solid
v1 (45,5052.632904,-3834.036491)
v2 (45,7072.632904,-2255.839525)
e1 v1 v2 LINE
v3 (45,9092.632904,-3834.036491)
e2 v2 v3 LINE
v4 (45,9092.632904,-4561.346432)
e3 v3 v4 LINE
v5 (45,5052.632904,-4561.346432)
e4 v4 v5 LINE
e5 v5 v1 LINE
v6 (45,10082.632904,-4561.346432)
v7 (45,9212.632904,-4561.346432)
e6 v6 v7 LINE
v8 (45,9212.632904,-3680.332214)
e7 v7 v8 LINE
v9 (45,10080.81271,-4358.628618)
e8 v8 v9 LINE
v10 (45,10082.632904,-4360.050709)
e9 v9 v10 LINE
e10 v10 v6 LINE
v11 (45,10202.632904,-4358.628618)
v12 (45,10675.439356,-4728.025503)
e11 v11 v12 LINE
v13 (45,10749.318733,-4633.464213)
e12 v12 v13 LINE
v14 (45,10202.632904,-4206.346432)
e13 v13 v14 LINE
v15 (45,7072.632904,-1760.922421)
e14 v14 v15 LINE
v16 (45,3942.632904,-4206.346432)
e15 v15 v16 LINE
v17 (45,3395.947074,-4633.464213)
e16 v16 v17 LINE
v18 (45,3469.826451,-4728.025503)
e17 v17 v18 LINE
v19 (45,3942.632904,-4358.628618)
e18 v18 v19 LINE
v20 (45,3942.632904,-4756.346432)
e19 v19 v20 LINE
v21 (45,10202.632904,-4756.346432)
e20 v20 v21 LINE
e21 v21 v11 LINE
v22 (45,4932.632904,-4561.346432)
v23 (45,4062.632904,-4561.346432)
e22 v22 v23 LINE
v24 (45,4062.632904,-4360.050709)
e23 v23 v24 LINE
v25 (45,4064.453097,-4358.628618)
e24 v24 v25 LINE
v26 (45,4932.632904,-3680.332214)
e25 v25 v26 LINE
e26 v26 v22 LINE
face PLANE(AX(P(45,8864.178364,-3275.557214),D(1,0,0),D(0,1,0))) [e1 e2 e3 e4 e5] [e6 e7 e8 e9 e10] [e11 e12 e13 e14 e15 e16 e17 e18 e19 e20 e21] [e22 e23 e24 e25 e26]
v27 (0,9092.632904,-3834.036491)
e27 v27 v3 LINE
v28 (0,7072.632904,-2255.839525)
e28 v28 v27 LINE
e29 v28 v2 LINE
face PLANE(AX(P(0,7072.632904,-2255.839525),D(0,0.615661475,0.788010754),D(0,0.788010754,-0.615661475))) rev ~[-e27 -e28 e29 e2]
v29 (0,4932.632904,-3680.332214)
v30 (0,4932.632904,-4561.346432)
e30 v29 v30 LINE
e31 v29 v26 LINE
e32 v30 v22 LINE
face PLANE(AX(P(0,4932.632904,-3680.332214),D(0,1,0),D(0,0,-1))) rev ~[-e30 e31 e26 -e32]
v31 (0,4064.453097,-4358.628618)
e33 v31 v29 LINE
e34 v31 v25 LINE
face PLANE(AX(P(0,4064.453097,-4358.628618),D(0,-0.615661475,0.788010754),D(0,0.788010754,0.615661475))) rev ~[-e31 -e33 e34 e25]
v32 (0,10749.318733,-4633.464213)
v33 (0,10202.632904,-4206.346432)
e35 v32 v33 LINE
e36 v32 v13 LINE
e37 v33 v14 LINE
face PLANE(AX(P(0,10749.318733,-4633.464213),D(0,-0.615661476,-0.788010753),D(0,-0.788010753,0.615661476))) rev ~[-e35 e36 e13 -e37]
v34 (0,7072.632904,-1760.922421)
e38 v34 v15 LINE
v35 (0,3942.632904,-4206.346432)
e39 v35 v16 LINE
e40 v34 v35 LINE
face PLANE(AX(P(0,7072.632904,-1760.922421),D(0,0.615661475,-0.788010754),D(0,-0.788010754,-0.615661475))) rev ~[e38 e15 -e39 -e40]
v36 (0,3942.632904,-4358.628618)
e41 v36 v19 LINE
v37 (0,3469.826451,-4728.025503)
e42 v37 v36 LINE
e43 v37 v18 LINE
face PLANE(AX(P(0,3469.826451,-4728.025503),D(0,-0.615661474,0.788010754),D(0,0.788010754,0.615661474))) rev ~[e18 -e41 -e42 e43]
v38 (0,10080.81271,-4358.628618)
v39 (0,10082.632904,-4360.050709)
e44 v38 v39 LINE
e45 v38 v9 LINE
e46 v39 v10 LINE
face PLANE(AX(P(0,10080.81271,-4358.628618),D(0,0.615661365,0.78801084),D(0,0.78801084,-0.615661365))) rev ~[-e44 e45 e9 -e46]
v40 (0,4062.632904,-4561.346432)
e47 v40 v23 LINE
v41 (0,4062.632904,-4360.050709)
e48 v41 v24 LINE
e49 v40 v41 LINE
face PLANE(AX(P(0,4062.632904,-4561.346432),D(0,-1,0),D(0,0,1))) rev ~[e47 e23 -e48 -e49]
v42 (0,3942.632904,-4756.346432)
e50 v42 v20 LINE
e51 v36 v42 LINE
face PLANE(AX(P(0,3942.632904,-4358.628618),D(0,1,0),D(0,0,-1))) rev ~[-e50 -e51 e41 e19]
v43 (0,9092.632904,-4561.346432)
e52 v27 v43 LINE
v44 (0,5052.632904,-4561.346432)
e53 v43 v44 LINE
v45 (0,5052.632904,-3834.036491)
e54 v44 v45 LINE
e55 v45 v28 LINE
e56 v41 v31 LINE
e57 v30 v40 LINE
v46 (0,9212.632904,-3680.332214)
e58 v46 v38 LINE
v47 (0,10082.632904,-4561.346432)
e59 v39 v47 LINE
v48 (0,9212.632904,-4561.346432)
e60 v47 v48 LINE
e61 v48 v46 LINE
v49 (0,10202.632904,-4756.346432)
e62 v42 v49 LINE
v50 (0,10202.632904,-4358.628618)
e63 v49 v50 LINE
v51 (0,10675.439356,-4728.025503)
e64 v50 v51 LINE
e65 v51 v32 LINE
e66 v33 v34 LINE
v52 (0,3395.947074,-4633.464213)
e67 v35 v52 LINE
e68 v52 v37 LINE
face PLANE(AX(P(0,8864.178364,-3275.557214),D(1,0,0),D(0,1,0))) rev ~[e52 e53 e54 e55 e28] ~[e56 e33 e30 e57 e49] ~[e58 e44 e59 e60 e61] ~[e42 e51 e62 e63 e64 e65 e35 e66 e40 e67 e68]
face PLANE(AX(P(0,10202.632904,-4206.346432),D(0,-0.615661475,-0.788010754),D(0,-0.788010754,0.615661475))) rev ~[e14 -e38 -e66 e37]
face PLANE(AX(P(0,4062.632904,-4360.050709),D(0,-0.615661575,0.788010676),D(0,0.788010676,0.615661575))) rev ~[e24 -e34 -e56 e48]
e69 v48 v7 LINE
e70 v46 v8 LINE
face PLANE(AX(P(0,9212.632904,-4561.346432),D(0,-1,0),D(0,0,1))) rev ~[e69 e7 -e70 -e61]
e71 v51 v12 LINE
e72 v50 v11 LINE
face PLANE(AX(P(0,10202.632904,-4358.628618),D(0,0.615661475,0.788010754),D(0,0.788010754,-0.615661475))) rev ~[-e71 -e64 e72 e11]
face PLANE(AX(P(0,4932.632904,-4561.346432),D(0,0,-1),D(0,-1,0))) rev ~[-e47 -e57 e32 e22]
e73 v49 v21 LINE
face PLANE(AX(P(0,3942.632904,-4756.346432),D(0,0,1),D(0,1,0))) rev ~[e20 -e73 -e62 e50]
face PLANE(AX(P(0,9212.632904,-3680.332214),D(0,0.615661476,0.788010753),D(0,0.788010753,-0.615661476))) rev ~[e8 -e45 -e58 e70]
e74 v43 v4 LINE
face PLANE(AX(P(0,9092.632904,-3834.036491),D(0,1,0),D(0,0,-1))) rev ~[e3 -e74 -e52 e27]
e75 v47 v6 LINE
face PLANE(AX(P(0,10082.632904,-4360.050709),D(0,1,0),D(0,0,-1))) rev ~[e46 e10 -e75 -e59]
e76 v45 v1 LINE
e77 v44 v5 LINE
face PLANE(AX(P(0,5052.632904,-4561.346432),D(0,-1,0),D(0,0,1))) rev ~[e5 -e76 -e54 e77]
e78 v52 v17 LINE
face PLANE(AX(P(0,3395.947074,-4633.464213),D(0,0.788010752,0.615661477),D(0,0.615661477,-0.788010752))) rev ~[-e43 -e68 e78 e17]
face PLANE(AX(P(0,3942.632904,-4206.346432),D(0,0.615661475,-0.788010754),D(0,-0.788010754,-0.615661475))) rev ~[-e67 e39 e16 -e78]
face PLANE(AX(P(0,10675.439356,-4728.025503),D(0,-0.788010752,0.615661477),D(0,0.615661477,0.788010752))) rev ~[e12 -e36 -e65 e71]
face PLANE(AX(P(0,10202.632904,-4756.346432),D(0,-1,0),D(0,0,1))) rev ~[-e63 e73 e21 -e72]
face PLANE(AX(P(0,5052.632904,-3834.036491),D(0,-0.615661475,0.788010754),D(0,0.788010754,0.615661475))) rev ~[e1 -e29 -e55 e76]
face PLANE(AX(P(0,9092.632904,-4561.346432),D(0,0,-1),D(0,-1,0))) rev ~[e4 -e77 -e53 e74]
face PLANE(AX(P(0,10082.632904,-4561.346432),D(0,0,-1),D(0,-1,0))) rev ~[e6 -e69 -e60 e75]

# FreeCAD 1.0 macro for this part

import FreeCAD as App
import Part
import Sketcher
from FreeCAD import Vector
Q = App.Units.Quantity

doc = App.newDocument("Part")
params = doc.addObject("Spreadsheet::Sheet", "Params")
for row, (alias, value) in enumerate([
    ("sketch1_width", "6260 mm"),
    ("sketch1_width2", "870 mm"),
    ("sketch1_width3", "4040 mm"),
    ("sketch1_length", "600 mm"),
    ("sketch1_length2", "120 mm"),
    ("pad1_length", "45 mm"),
], start=1):
    params.set(f"A{row}", alias)
    params.set(f"B{row}", "=" + value)
    params.setAlias(f"B{row}", alias)

body = doc.addObject("PartDesign::Body", "Body")

# Sketch on YZ plane
sketch1 = body.newObject("Sketcher::SketchObject", "Sketch")
sketch1.AttachmentSupport = (doc.getObject("YZ_Plane"), [""])
sketch1.MapMode = "FlatFace"
sketch1.addGeometry(Part.LineSegment(Vector(10202.6, -4756.3, 0), Vector(10202.6, -4358.6, 0)), False)
sketch1.addGeometry(Part.LineSegment(Vector(10202.6, -4358.6, 0), Vector(10675.4, -4728, 0)), False)
sketch1.addGeometry(Part.LineSegment(Vector(10675.4, -4728, 0), Vector(10749.3, -4633.5, 0)), False)
sketch1.addGeometry(Part.LineSegment(Vector(10749.3, -4633.5, 0), Vector(10202.6, -4206.3, 0)), False)
sketch1.addGeometry(Part.LineSegment(Vector(10202.6, -4206.3, 0), Vector(7072.6, -1760.9, 0)), False)
sketch1.addGeometry(Part.LineSegment(Vector(7072.6, -1760.9, 0), Vector(3942.6, -4206.3, 0)), False)
sketch1.addGeometry(Part.LineSegment(Vector(3942.6, -4206.3, 0), Vector(3395.9, -4633.5, 0)), False)
sketch1.addGeometry(Part.LineSegment(Vector(3395.9, -4633.5, 0), Vector(3469.8, -4728, 0)), False)
sketch1.addGeometry(Part.LineSegment(Vector(3469.8, -4728, 0), Vector(3942.6, -4358.6, 0)), False)
sketch1.addGeometry(Part.LineSegment(Vector(3942.6, -4358.6, 0), Vector(3942.6, -4756.3, 0)), False)
sketch1.addGeometry(Part.LineSegment(Vector(3942.6, -4756.3, 0), Vector(10202.6, -4756.3, 0)), False)
sketch1.addGeometry(Part.LineSegment(Vector(9212.6, -3680.3, 0), Vector(10080.8, -4358.6, 0)), False)
sketch1.addGeometry(Part.LineSegment(Vector(10080.8, -4358.6, 0), Vector(10082.6, -4360.1, 0)), False)
sketch1.addGeometry(Part.LineSegment(Vector(10082.6, -4360.1, 0), Vector(10082.6, -4561.3, 0)), False)
sketch1.addGeometry(Part.LineSegment(Vector(10082.6, -4561.3, 0), Vector(9212.6, -4561.3, 0)), False)
sketch1.addGeometry(Part.LineSegment(Vector(9212.6, -4561.3, 0), Vector(9212.6, -3680.3, 0)), False)
sketch1.addGeometry(Part.LineSegment(Vector(4062.6, -4561.3, 0), Vector(4062.6, -4360.1, 0)), False)
sketch1.addGeometry(Part.LineSegment(Vector(4062.6, -4360.1, 0), Vector(4064.5, -4358.6, 0)), False)
sketch1.addGeometry(Part.LineSegment(Vector(4064.5, -4358.6, 0), Vector(4932.6, -3680.3, 0)), False)
sketch1.addGeometry(Part.LineSegment(Vector(4932.6, -3680.3, 0), Vector(4932.6, -4561.3, 0)), False)
sketch1.addGeometry(Part.LineSegment(Vector(4932.6, -4561.3, 0), Vector(4062.6, -4561.3, 0)), False)
sketch1.addGeometry(Part.LineSegment(Vector(9092.6, -4561.3, 0), Vector(5052.6, -4561.3, 0)), False)
sketch1.addGeometry(Part.LineSegment(Vector(5052.6, -4561.3, 0), Vector(5052.6, -3834, 0)), False)
sketch1.addGeometry(Part.LineSegment(Vector(5052.6, -3834, 0), Vector(7072.6, -2255.8, 0)), False)
sketch1.addGeometry(Part.LineSegment(Vector(7072.6, -2255.8, 0), Vector(9092.6, -3834, 0)), False)
sketch1.addGeometry(Part.LineSegment(Vector(9092.6, -3834, 0), Vector(9092.6, -4561.3, 0)), False)
sketch1.addConstraint(Sketcher.Constraint("Coincident", 0, 2, 1, 1))
sketch1.addConstraint(Sketcher.Constraint("Coincident", 1, 2, 2, 1))
sketch1.addConstraint(Sketcher.Constraint("Coincident", 2, 2, 3, 1))
sketch1.addConstraint(Sketcher.Constraint("Coincident", 3, 2, 4, 1))
sketch1.addConstraint(Sketcher.Constraint("Coincident", 4, 2, 5, 1))
sketch1.addConstraint(Sketcher.Constraint("Coincident", 5, 2, 6, 1))
sketch1.addConstraint(Sketcher.Constraint("Coincident", 6, 2, 7, 1))
sketch1.addConstraint(Sketcher.Constraint("Coincident", 7, 2, 8, 1))
sketch1.addConstraint(Sketcher.Constraint("Coincident", 8, 2, 9, 1))
sketch1.addConstraint(Sketcher.Constraint("Coincident", 9, 2, 10, 1))
sketch1.addConstraint(Sketcher.Constraint("Coincident", 10, 2, 0, 1))
sketch1.addConstraint(Sketcher.Constraint("Coincident", 11, 2, 12, 1))
sketch1.addConstraint(Sketcher.Constraint("Coincident", 12, 2, 13, 1))
sketch1.addConstraint(Sketcher.Constraint("Coincident", 13, 2, 14, 1))
sketch1.addConstraint(Sketcher.Constraint("Coincident", 14, 2, 15, 1))
sketch1.addConstraint(Sketcher.Constraint("Coincident", 15, 2, 11, 1))
sketch1.addConstraint(Sketcher.Constraint("Coincident", 16, 2, 17, 1))
sketch1.addConstraint(Sketcher.Constraint("Coincident", 17, 2, 18, 1))
sketch1.addConstraint(Sketcher.Constraint("Coincident", 18, 2, 19, 1))
sketch1.addConstraint(Sketcher.Constraint("Coincident", 19, 2, 20, 1))
sketch1.addConstraint(Sketcher.Constraint("Coincident", 20, 2, 16, 1))
sketch1.addConstraint(Sketcher.Constraint("Coincident", 21, 2, 22, 1))
sketch1.addConstraint(Sketcher.Constraint("Coincident", 22, 2, 23, 1))
sketch1.addConstraint(Sketcher.Constraint("Coincident", 23, 2, 24, 1))
sketch1.addConstraint(Sketcher.Constraint("Coincident", 24, 2, 25, 1))
sketch1.addConstraint(Sketcher.Constraint("Coincident", 25, 2, 21, 1))
sketch1.addConstraint(Sketcher.Constraint("Vertical", 0))
sketch1.addConstraint(Sketcher.Constraint("Vertical", 9))
sketch1.addConstraint(Sketcher.Constraint("Horizontal", 10))
sketch1.addConstraint(Sketcher.Constraint("Vertical", 13))
sketch1.addConstraint(Sketcher.Constraint("Horizontal", 14))
sketch1.addConstraint(Sketcher.Constraint("Vertical", 15))
sketch1.addConstraint(Sketcher.Constraint("Vertical", 16))
sketch1.addConstraint(Sketcher.Constraint("Vertical", 19))
sketch1.addConstraint(Sketcher.Constraint("Horizontal", 20))
sketch1.addConstraint(Sketcher.Constraint("Horizontal", 21))
sketch1.addConstraint(Sketcher.Constraint("Vertical", 22))
sketch1.addConstraint(Sketcher.Constraint("Vertical", 25))
sketch1.addConstraint(Sketcher.Constraint("Perpendicular", 1, 2))
sketch1.addConstraint(Sketcher.Constraint("Perpendicular", 2, 3))
sketch1.addConstraint(Sketcher.Constraint("Parallel", 3, 4))
sketch1.addConstraint(Sketcher.Constraint("Parallel", 5, 6))
sketch1.addConstraint(Sketcher.Constraint("Perpendicular", 6, 7))
sketch1.addConstraint(Sketcher.Constraint("Perpendicular", 7, 8))
sketch1.addConstraint(Sketcher.Constraint("Parallel", 4, 11))
sketch1.addConstraint(Sketcher.Constraint("Parallel", 11, 12))
sketch1.addConstraint(Sketcher.Constraint("Parallel", 8, 17))
sketch1.addConstraint(Sketcher.Constraint("Parallel", 8, 18))
sketch1.addConstraint(Sketcher.Constraint("Parallel", 18, 23))
sketch1.addConstraint(Sketcher.Constraint("Parallel", 11, 24))
sketch1.addConstraint(Sketcher.Constraint("Horizontal", 3, 2, 5, 2))
sketch1.addConstraint(Sketcher.Constraint("Horizontal", 2, 2, 6, 2))
sketch1.addConstraint(Sketcher.Constraint("Horizontal", 1, 2, 7, 2))
sketch1.addConstraint(Sketcher.Constraint("Horizontal", 0, 2, 8, 2))
sketch1.addConstraint(Sketcher.Constraint("Horizontal", 8, 2, 11, 2))
sketch1.addConstraint(Sketcher.Constraint("Horizontal", 12, 2, 16, 2))
sketch1.addConstraint(Sketcher.Constraint("Horizontal", 11, 2, 17, 2))
sketch1.addConstraint(Sketcher.Constraint("Horizontal", 15, 2, 18, 2))
sketch1.addConstraint(Sketcher.Constraint("Horizontal", 14, 2, 19, 2))
sketch1.addConstraint(Sketcher.Constraint("Horizontal", 20, 2, 21, 2))
sketch1.addConstraint(Sketcher.Constraint("Horizontal", 22, 2, 24, 2))
sketch1.addConstraint(Sketcher.Constraint("Vertical", 0, 2, 3, 2))
sketch1.addConstraint(Sketcher.Constraint("Vertical", 5, 2, 8, 2))
sketch1.addConstraint(Sketcher.Constraint("Vertical", 4, 2, 23, 2))
sketch1.addConstraint(Sketcher.Constraint("DistanceX", 10, 1, 10, 2, Q("6260 mm")))
sketch1.addConstraint(Sketcher.Constraint("DistanceX", 14, 2, 14, 1, Q("870 mm")))
sketch1.addConstraint(Sketcher.Constraint("DistanceX", 21, 2, 21, 1, Q("4040 mm")))
sketch1.addConstraint(Sketcher.Constraint("Angle", 1, Q("-38 deg")))
sketch1.addConstraint(Sketcher.Constraint("Distance", 1, Q("600 mm")))
sketch1.addConstraint(Sketcher.Constraint("Distance", 2, Q("120 mm")))
sketch1.addConstraint(Sketcher.Constraint("DistanceY", 9, 2, 5, 2, Q("550 mm")))
sketch1.addConstraint(Sketcher.Constraint("DistanceX", 12, 2, 0, 2, Q("120 mm")))
sketch1.addConstraint(Sketcher.Constraint("DistanceY", 10, 2, 13, 2, Q("195 mm")))
sketch1.addConstraint(Sketcher.Constraint("DistanceX", 8, 2, 16, 2, Q("120 mm")))
sketch1.addConstraint(Sketcher.Constraint("DistanceY", 15, 1, 15, 2, Q("881.014218 mm")))
sketch1.addConstraint(Sketcher.Constraint("DistanceY", 22, 1, 22, 2, Q("727.309941 mm")))
sketch1.addConstraint(Sketcher.Constraint("DistanceY", 4, 2, -1, 1, Q("1760.922421 mm")))
sketch1.addConstraint(Sketcher.Constraint("DistanceX", -1, 1, 7, 2, Q("3469.826451 mm")))
sketch1.setExpression("Constraints[64]", "Params.sketch1_width")
sketch1.setExpression("Constraints[65]", "Params.sketch1_width2")
sketch1.setExpression("Constraints[66]", "Params.sketch1_width3")
sketch1.setExpression("Constraints[68]", "Params.sketch1_length")
sketch1.setExpression("Constraints[69]", "Params.sketch1_length2")
pad1 = body.newObject("PartDesign::Pad", "Pad")
pad1.Profile = sketch1
pad1.setExpression("Length", "Params.pad1_length")

doc.recompute()
